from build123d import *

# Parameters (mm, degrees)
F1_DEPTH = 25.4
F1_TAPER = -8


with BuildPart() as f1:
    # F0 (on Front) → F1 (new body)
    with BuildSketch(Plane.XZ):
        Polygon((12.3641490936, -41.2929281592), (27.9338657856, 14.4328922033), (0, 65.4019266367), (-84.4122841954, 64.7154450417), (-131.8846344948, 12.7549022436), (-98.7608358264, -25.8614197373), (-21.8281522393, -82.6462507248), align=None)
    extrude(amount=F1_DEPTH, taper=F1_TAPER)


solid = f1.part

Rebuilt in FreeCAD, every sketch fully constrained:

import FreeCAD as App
import Part
import Sketcher
Q = App.Units.Quantity


def add_polygon(sketch, points):
    """Adds a closed chain of lines whose ends are joined by coincident constraints."""
    first, n = sketch.GeometryCount, len(points)
    for a, b in zip(points, points[1:] + points[:1]):
        sketch.addGeometry(Part.LineSegment(App.Vector(*a, 0), App.Vector(*b, 0)), False)
    for i in range(n):
        sketch.addConstraint(Sketcher.Constraint("Coincident", first + i, 2, first + (i + 1) % n, 1))

doc = App.newDocument("Part")
body = doc.addObject("PartDesign::Body", "Body")

# Sketch on XZ plane
sketch1 = body.newObject("Sketcher::SketchObject", "Sketch")
sketch1.AttachmentSupport = (doc.getObject("XZ_Plane"), [""])
sketch1.MapMode = "FlatFace"
add_polygon(sketch1, [(12, -41), (28, 14), (0, 65), (-84, 65), (-132, 13), (-99, -26), (-22, -83)])  # lines 0-6
sketch1.addConstraint([
    Sketcher.Constraint("PointOnObject", 1, 2, -2),
    Sketcher.Constraint("DistanceX", 3, 2, 0, 2, Q("159.8185 mm")),
    Sketcher.Constraint("DistanceX", 3, 2, 4, 2, Q("33.123799 mm")),
    Sketcher.Constraint("DistanceX", 5, 2, 6, 2, Q("34.192301 mm")),
    Sketcher.Constraint("Distance", 0, Q("57.860031 mm")),
    Sketcher.Constraint("DistanceY", 4, 2, -1, 1, Q("25.86142 mm")),
    Sketcher.Constraint("DistanceY", 5, 2, -1, 1, Q("82.646251 mm")),
    Sketcher.Constraint("DistanceX", -1, 1, 6, 2, Q("12.364149 mm")),
    Sketcher.Constraint("DistanceY", 6, 2, -1, 1, Q("41.292928 mm")),
    Sketcher.Constraint("DistanceY", 2, 2, 1, 2, Q("0.686482 mm")),
    Sketcher.Constraint("DistanceX", 2, 2, 0, 2, Q("112.34615 mm")),
    Sketcher.Constraint("DistanceY", 3, 2, 0, 2, Q("1.67799 mm")),
    Sketcher.Constraint("DistanceY", 4, 2, 3, 2, Q("38.616322 mm")),
    Sketcher.Constraint("Distance", 1, Q("58.121797 mm")),
])
pad1 = body.newObject("PartDesign::Pad", "Pad")
pad1.Profile = sketch1
pad1.Length = Q("1 in")
pad1.TaperAngle = 8

doc.recompute()
